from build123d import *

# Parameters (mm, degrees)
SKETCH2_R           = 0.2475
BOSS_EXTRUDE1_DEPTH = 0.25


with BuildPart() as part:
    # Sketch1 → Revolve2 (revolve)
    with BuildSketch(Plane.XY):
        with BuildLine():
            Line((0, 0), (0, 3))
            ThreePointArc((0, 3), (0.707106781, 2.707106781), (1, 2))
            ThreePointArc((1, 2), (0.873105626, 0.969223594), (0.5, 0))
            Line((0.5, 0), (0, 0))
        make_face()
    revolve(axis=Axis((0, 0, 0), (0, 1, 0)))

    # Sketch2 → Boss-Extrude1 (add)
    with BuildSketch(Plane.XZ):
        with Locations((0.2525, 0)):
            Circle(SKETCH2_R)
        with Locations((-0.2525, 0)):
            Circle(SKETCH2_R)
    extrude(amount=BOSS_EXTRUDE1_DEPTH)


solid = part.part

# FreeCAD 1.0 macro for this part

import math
import FreeCAD as App
import Part
import Sketcher

V = App.Vector

doc = App.newDocument("Part")
body = doc.addObject("PartDesign::Body", "Body")

# Sketch on XY plane
sketch1 = doc.addObject("Sketcher::SketchObject", "Sketch")
body.addObject(sketch1)
sketch1.AttachmentSupport = (doc.XY_Plane, [""])
sketch1.MapMode = "FlatFace"
sketch1.addGeometry([
    Part.LineSegment(V(0, 3, 0), V(0, 0, 0)),
    Part.LineSegment(V(0, 0, 0), V(0.5, 0, 0)),
    Part.ArcOfCircle(Part.Circle(V(-3.25, 2, 0), V(0, 0, 1), 4.25), math.radians(-28.072487), math.radians(0)),
    Part.ArcOfCircle(Part.Circle(V(0, 2, 0), V(0, 0, 1), 1), math.radians(0), math.radians(90)),
], False)
sketch1.addConstraint([
    Sketcher.Constraint("Coincident", 0, 2, 1, 1),
    Sketcher.Constraint("Coincident", 1, 2, 2, 1),
    Sketcher.Constraint("Tangent", 2, 2, 3, 1),
    Sketcher.Constraint("Coincident", 3, 2, 0, 1),
    Sketcher.Constraint("Vertical", 0),
    Sketcher.Constraint("Horizontal", 1),
    Sketcher.Constraint("Coincident", 0, 2, -1, 1),
    Sketcher.Constraint("PointOnObject", 3, 3, -2),
    Sketcher.Constraint("Horizontal", 2, 3, 3, 3),
    Sketcher.Constraint("Radius", 3, 1.0),
    Sketcher.Constraint("DistanceY", 0, 2, 0, 1, 3.0),
    Sketcher.Constraint("Radius", 2, 4.25),
])
revolution = doc.addObject("PartDesign::Revolution", "Revolution")
body.addObject(revolution)
revolution.Profile = sketch1
revolution.ReferenceAxis = (sketch1, ["V_Axis"])
revolution.Angle = 360

# Sketch on XZ plane
sketch2 = doc.addObject("Sketcher::SketchObject", "Sketch001")
body.addObject(sketch2)
sketch2.AttachmentSupport = (doc.XZ_Plane, [""])
sketch2.MapMode = "FlatFace"
sketch2.addGeometry([
    Part.Circle(V(0.2525, 0, 0), V(0, 0, 1), 0.2475),
    Part.Circle(V(-0.2525, 0, 0), V(0, 0, 1), 0.2475),
], False)
sketch2.addConstraint([
    Sketcher.Constraint("Equal", 0, 1),
    Sketcher.Constraint("Symmetric", 0, 3, 1, 3, -1, 1),
    Sketcher.Constraint("PointOnObject", 0, 3, -1),
    Sketcher.Constraint("Diameter", 0, 0.495),
    Sketcher.Constraint("DistanceX", 1, 3, 0, 3, 0.505),
])
pad1 = doc.addObject("PartDesign::Pad", "Pad")
body.addObject(pad1)
pad1.Profile = sketch2
pad1.Length = 0.25

doc.recompute()
